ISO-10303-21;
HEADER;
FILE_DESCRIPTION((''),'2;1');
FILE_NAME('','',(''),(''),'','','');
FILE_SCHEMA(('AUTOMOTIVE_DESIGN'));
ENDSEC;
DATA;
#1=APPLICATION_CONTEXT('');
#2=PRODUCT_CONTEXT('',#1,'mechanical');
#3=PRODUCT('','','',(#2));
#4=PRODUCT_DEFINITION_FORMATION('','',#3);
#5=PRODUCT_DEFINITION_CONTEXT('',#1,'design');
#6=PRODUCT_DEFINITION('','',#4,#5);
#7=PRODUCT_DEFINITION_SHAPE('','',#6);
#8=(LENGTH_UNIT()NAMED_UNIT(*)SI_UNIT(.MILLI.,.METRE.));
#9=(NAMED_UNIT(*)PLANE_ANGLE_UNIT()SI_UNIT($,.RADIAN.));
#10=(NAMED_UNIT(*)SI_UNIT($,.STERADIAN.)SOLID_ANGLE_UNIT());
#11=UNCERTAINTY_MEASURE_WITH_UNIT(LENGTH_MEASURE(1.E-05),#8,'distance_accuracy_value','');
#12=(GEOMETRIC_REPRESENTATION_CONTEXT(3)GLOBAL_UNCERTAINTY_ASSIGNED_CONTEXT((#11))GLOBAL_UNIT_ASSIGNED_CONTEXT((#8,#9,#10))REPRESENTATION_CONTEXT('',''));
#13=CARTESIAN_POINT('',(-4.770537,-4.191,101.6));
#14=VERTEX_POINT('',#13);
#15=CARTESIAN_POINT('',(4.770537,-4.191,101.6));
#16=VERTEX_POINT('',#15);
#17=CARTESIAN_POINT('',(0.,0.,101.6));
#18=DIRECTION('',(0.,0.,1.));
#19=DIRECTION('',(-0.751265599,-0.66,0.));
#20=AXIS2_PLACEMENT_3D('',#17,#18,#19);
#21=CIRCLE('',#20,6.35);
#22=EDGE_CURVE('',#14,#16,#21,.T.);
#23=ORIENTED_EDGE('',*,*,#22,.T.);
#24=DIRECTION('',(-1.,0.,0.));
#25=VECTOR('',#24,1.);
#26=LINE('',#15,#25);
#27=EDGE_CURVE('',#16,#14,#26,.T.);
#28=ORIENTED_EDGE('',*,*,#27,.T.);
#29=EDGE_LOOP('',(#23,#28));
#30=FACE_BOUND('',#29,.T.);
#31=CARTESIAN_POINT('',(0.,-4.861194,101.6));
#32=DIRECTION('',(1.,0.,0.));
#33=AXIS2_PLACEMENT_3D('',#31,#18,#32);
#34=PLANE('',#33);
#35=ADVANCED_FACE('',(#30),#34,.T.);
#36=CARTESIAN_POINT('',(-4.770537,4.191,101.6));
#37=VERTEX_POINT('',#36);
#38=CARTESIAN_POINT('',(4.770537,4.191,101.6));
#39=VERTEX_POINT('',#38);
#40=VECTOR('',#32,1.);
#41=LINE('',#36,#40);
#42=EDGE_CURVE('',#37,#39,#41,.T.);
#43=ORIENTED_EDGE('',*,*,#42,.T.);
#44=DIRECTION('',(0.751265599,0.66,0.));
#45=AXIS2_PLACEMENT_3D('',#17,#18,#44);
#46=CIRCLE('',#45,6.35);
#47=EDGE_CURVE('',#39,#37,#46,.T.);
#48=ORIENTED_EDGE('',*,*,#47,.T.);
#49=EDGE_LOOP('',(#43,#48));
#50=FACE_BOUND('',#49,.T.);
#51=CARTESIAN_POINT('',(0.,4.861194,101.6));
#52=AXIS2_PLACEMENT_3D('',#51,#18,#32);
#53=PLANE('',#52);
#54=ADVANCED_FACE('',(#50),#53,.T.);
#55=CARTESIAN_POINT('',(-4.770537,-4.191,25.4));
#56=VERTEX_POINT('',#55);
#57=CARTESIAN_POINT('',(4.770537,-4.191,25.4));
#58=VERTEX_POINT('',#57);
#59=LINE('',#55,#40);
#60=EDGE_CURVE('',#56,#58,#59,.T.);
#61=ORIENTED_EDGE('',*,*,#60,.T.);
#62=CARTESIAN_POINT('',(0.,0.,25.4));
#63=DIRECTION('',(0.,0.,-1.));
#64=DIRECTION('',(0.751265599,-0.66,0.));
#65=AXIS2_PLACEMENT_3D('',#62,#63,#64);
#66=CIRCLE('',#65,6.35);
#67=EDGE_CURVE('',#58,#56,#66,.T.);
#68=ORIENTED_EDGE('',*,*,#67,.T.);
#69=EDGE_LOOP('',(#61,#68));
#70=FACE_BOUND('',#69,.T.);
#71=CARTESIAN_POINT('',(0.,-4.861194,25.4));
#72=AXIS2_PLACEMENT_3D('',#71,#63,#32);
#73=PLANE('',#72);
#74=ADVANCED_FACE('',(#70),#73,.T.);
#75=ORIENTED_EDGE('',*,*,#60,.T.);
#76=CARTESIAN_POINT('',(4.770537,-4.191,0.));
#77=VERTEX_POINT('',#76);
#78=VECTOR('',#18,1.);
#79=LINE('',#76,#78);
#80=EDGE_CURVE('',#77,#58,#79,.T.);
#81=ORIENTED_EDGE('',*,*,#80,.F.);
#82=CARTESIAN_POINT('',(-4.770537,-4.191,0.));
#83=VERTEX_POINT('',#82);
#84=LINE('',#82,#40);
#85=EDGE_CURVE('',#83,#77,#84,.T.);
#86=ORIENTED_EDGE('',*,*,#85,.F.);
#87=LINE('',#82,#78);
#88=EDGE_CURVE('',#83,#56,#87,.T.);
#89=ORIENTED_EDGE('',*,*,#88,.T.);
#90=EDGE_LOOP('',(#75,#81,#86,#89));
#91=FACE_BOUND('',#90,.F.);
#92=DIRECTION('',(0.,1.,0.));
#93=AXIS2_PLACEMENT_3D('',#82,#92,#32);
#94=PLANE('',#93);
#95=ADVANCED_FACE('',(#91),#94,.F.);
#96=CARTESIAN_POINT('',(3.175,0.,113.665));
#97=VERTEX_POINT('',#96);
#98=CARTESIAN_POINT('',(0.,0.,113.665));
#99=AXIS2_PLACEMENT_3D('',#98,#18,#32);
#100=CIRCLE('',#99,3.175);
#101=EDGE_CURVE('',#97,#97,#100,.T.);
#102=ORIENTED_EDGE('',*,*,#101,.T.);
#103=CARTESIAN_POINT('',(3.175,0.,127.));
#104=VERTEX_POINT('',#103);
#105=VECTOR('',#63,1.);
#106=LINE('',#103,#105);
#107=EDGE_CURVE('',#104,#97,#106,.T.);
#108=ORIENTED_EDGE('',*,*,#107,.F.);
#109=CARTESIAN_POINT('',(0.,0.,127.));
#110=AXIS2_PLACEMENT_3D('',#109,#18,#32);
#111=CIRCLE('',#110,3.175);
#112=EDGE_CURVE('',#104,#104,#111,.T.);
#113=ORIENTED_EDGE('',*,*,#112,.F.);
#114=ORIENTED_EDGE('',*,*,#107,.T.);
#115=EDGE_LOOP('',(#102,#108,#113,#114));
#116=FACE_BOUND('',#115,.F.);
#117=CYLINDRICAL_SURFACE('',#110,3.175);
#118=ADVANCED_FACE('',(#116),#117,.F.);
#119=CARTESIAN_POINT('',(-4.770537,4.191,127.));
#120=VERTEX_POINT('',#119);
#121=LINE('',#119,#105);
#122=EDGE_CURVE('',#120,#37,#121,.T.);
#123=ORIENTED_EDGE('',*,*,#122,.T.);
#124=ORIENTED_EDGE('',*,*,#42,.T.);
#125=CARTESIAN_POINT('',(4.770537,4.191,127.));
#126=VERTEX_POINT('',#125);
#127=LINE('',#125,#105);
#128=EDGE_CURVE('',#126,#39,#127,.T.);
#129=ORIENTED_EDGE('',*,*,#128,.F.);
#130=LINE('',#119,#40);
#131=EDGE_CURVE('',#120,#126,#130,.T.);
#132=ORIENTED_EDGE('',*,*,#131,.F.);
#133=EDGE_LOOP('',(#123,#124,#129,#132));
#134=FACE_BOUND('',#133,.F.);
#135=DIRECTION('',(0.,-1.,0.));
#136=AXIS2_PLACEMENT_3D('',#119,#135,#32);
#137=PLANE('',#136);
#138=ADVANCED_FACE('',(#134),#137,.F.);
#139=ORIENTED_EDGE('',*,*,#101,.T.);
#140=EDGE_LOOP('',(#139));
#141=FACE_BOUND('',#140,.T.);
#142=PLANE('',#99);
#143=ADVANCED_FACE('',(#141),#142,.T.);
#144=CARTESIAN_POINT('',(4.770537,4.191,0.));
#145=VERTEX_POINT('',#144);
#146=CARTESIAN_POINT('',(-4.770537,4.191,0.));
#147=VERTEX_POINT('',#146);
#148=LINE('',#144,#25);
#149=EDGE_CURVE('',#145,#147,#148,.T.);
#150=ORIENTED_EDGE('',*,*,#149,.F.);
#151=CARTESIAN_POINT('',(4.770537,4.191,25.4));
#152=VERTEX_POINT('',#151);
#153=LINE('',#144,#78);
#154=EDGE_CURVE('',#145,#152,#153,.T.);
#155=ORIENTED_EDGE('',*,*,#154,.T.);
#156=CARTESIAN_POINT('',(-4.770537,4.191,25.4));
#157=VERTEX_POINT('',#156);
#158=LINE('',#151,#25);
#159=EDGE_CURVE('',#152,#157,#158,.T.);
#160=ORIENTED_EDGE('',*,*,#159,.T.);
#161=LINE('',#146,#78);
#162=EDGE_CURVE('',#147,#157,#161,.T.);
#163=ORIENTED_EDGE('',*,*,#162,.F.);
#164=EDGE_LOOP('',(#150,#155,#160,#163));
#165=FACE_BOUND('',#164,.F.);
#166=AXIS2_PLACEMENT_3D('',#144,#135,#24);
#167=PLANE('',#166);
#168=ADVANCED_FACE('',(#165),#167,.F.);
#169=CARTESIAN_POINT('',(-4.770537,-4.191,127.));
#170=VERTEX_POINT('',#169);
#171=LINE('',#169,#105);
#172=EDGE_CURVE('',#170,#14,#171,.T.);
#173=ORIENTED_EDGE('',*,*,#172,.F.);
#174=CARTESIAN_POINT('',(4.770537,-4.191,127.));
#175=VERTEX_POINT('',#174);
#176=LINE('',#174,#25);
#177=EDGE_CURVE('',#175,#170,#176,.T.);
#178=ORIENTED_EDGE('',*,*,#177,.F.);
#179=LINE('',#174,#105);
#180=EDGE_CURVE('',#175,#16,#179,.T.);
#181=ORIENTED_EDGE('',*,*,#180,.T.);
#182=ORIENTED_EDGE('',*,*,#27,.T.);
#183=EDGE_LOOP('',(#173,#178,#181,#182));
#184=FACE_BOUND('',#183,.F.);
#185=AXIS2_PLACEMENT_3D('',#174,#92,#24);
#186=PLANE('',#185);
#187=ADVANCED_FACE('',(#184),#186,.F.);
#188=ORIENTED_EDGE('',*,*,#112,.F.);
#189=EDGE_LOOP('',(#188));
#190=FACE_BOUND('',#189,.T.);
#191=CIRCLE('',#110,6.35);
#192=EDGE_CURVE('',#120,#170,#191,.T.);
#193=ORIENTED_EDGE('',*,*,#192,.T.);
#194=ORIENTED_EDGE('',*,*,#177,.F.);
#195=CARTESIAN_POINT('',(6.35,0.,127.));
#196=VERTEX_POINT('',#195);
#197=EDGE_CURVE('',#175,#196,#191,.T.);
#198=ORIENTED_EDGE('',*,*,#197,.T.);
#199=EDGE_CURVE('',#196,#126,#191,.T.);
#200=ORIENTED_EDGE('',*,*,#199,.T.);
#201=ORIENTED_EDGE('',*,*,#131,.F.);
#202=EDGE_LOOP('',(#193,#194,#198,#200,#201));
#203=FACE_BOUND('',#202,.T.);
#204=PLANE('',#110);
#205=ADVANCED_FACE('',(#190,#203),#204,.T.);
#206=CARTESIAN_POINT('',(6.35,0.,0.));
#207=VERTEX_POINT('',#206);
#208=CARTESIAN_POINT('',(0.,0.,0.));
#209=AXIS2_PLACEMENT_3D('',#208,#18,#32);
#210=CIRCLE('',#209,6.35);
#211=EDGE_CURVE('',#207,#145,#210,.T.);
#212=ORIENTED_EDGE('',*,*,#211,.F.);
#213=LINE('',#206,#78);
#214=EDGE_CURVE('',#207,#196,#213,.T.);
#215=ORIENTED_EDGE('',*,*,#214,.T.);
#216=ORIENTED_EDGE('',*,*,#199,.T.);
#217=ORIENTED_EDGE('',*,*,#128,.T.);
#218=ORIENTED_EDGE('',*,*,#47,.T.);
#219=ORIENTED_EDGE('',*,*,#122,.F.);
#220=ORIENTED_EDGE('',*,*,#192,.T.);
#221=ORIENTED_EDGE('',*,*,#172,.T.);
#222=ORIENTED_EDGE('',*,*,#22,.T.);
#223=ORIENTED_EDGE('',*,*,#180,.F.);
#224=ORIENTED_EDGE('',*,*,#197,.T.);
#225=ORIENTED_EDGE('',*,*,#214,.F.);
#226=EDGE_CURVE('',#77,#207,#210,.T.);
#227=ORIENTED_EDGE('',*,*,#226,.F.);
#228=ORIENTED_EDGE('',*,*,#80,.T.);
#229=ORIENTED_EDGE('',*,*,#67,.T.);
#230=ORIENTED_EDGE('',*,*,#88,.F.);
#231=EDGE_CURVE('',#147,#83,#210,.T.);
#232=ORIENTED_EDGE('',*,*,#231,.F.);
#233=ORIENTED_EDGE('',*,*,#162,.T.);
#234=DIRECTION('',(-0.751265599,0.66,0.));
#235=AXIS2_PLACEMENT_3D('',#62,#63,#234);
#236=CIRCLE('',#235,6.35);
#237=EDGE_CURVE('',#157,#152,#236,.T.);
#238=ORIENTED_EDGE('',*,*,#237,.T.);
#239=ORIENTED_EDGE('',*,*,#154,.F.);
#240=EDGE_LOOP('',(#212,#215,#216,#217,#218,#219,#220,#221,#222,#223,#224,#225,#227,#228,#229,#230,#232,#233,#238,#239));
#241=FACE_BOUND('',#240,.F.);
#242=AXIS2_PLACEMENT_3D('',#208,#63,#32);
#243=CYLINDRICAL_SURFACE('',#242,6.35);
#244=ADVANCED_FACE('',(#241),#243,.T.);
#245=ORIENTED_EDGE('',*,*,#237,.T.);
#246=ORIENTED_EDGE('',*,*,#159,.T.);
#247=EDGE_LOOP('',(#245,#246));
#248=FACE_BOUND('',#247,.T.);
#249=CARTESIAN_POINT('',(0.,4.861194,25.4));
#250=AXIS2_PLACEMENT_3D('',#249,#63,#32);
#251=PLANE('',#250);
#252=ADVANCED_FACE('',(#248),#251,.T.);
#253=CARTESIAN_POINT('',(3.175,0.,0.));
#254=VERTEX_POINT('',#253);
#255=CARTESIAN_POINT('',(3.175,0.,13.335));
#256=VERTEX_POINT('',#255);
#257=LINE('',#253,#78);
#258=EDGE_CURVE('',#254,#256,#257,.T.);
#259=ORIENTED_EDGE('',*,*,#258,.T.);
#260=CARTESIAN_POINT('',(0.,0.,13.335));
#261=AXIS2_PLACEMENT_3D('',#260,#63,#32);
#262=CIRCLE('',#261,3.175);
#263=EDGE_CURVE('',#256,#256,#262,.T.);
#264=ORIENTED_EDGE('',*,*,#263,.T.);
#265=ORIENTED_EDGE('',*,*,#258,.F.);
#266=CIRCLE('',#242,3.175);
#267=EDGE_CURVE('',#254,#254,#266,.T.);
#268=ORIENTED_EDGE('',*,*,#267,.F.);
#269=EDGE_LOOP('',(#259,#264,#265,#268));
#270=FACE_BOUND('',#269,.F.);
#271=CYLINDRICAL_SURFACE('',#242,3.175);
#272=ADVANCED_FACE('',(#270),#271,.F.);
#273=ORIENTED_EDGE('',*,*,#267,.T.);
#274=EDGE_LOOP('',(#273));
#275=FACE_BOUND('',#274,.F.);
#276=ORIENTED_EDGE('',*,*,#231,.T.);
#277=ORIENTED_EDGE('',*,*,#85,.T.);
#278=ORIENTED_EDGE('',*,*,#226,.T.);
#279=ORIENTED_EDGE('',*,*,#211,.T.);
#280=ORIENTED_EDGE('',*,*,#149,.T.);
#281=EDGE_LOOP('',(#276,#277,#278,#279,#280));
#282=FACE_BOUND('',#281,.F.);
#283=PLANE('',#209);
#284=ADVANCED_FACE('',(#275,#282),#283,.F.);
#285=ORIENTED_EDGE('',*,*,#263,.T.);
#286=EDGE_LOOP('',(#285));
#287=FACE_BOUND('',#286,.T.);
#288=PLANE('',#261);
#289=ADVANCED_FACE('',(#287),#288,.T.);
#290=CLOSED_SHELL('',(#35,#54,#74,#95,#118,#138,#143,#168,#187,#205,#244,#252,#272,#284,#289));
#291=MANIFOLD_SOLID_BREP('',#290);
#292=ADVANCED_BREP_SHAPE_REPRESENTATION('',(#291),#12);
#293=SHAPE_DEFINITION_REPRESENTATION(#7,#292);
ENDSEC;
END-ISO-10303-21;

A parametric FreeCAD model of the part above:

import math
import FreeCAD as App
import Part
import Sketcher
from FreeCAD import Vector
Q = App.Units.Quantity

doc = App.newDocument("Part")
params = doc.addObject("Spreadsheet::Sheet", "Params")
for row, (alias, value) in enumerate([
    ("sketch1_diameter", "0.5 in"),
    ("pad1_length", "5 in"),
    ("sketch2_diameter", "0.25 in"),
    ("pocket1_length", "0.525 in"),
    ("sketch3_diameter", "0.25 in"),
    ("pocket2_length", "0.525 in"),
    ("sketch4_radius", "0.25 in"),
    ("pocket3_length", "1 in"),
    ("sketch5_radius", "0.25 in"),
    ("pocket4_length", "1 in"),
], start=1):
    params.set(f"A{row}", alias)
    params.set(f"B{row}", "=" + value)
    params.setAlias(f"B{row}", alias)

body = doc.addObject("PartDesign::Body", "Body")

sketch1 = body.newObject("Sketcher::SketchObject", "Sketch")
sketch1.AttachmentSupport = (doc.getObject("XY_Plane"), [""])
sketch1.MapMode = "FlatFace"
sketch1.addGeometry(Part.Circle(Vector(0, 0, 0), Vector(0, 0, 1), 6), False)
sketch1.addConstraint([
    Sketcher.Constraint("Coincident", 0, 3, -1, 1),
    Sketcher.Constraint("Diameter", 0, Q("0.5 in")),
])
sketch1.setExpression("Constraints[1]", "Params.sketch1_diameter")
pad1 = body.newObject("PartDesign::Pad", "Pad")
pad1.Profile = sketch1
pad1.setExpression("Length", "Params.pad1_length")

sketch2 = body.newObject("Sketcher::SketchObject", "Sketch001")
sketch2.AttachmentSupport = (doc.getObject("XY_Plane"), [""])
sketch2.MapMode = "FlatFace"
sketch2.addGeometry(Part.Circle(Vector(0, 0, 0), Vector(0, 0, 1), 3.2), False)
sketch2.addConstraint([
    Sketcher.Constraint("Coincident", 0, 3, -1, 1),
    Sketcher.Constraint("Diameter", 0, Q("0.25 in")),
])
sketch2.setExpression("Constraints[1]", "Params.sketch2_diameter")
pocket1 = body.newObject("PartDesign::Pocket", "Pocket")
pocket1.Profile = sketch2
pocket1.setExpression("Length", "Params.pocket1_length")
pocket1.Reversed = True

sketch3 = body.newObject("Sketcher::SketchObject", "Sketch002")
sketch3.AttachmentSupport = (doc.getObject("XY_Plane"), [""])
sketch3.MapMode = "FlatFace"
sketch3.AttachmentOffset = App.Placement(Vector(0, 0, 5 * 25.4), App.Rotation())
sketch3.addGeometry(Part.Circle(Vector(0, 0, 0), Vector(0, 0, 1), 3.2), False)
sketch3.addConstraint([
    Sketcher.Constraint("Coincident", 0, 3, -1, 1),
    Sketcher.Constraint("Diameter", 0, Q("0.25 in")),
])
sketch3.setExpression("Constraints[1]", "Params.sketch3_diameter")
pocket2 = body.newObject("PartDesign::Pocket", "Pocket001")
pocket2.Profile = sketch3
pocket2.setExpression("Length", "Params.pocket2_length")

sketch4 = body.newObject("Sketcher::SketchObject", "Sketch003")
sketch4.AttachmentSupport = (doc.getObject("XY_Plane"), [""])
sketch4.MapMode = "FlatFace"
sketch4.addGeometry([
    Part.LineSegment(Vector(-5, -4, 0), Vector(5, -4, 0)),
    Part.ArcOfCircle(Part.Circle(Vector(0, 0, 0), Vector(0, 0, 1), 6), math.radians(-139), math.radians(-41)),
    Part.LineSegment(Vector(5, 4, 0), Vector(-5, 4, 0)),
    Part.ArcOfCircle(Part.Circle(Vector(0, 0, 0), Vector(0, 0, 1), 6), math.radians(41), math.radians(139)),
], False)
sketch4.addConstraint([
    Sketcher.Constraint("Coincident", 0, 1, 1, 1),
    Sketcher.Constraint("Coincident", 1, 2, 0, 2),
    Sketcher.Constraint("Coincident", 2, 1, 3, 1),
    Sketcher.Constraint("Coincident", 3, 2, 2, 2),
    Sketcher.Constraint("Horizontal", 0),
    Sketcher.Constraint("Horizontal", 2),
    Sketcher.Constraint("Coincident", 1, 3, -1, 1),
    Sketcher.Constraint("Coincident", 3, 3, -1, 1),
    Sketcher.Constraint("Equal", 1, 3),
    Sketcher.Constraint("Vertical", 1, 2, 2, 1),
    Sketcher.Constraint("Radius", 1, Q("0.25 in")),
    Sketcher.Constraint("DistanceY", 1, 2, 2, 1, Q("0.33 in")),
])
sketch4.setExpression("Constraints[10]", "Params.sketch4_radius")
pocket3 = body.newObject("PartDesign::Pocket", "Pocket002")
pocket3.Profile = sketch4
pocket3.setExpression("Length", "Params.pocket3_length")
pocket3.Reversed = True

sketch5 = body.newObject("Sketcher::SketchObject", "Sketch004")
sketch5.AttachmentSupport = (doc.getObject("XY_Plane"), [""])
sketch5.MapMode = "FlatFace"
sketch5.AttachmentOffset = App.Placement(Vector(0, 0, 5 * 25.4), App.Rotation())
sketch5.addGeometry([
    Part.LineSegment(Vector(5, -4, 0), Vector(-5, -4, 0)),
    Part.ArcOfCircle(Part.Circle(Vector(0, 0, 0), Vector(0, 0, 1), 6), math.radians(-139), math.radians(-41)),
    Part.ArcOfCircle(Part.Circle(Vector(0, 0, 0), Vector(0, 0, 1), 6), math.radians(41), math.radians(139)),
    Part.LineSegment(Vector(-5, 4, 0), Vector(5, 4, 0)),
], False)
sketch5.addConstraint([
    Sketcher.Constraint("Coincident", 0, 1, 1, 2),
    Sketcher.Constraint("Coincident", 1, 1, 0, 2),
    Sketcher.Constraint("Coincident", 2, 1, 3, 2),
    Sketcher.Constraint("Coincident", 3, 1, 2, 2),
    Sketcher.Constraint("Horizontal", 0),
    Sketcher.Constraint("Horizontal", 3),
    Sketcher.Constraint("Coincident", 1, 3, -1, 1),
    Sketcher.Constraint("Coincident", 2, 3, -1, 1),
    Sketcher.Constraint("Equal", 1, 2),
    Sketcher.Constraint("Vertical", 0, 1, 2, 1),
    Sketcher.Constraint("Radius", 1, Q("0.25 in")),
    Sketcher.Constraint("DistanceY", 0, 1, 2, 1, Q("0.33 in")),
])
sketch5.setExpression("Constraints[10]", "Params.sketch5_radius")
pocket4 = body.newObject("PartDesign::Pocket", "Pocket003")
pocket4.Profile = sketch5
pocket4.setExpression("Length", "Params.pocket4_length")

doc.recompute()
